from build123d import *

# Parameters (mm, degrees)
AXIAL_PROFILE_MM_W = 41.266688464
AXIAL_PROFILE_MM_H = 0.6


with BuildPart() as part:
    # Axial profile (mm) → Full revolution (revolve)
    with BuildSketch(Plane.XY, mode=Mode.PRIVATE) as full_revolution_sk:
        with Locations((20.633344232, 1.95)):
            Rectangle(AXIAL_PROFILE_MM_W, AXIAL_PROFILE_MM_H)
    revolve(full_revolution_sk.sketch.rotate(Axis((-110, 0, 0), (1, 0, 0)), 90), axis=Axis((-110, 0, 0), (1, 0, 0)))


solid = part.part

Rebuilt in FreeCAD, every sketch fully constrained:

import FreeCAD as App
import Part
import Sketcher
from FreeCAD import Vector


def add_polygon(sketch, points):
    """Adds a closed chain of lines whose ends are joined by coincident constraints."""
    first, n = sketch.GeometryCount, len(points)
    for a, b in zip(points, points[1:] + points[:1]):
        sketch.addGeometry(Part.LineSegment(App.Vector(*a, 0), App.Vector(*b, 0)), False)
    for i in range(n):
        sketch.addConstraint(Sketcher.Constraint("Coincident", first + i, 2, first + (i + 1) % n, 1))

doc = App.newDocument("Part")
params = doc.addObject("Spreadsheet::Sheet", "Params")
for row, (alias, value) in enumerate([
    ("sketch1_height", "0.6 mm"),
    ("revolution_angle", "360 deg"),
], start=1):
    params.set(f"A{row}", alias)
    params.set(f"B{row}", "=" + value)
    params.setAlias(f"B{row}", alias)

body = doc.addObject("PartDesign::Body", "Body")

# Sketch on XY plane
sketch1 = body.newObject("Sketcher::SketchObject", "Sketch")
sketch1.AttachmentSupport = (doc.getObject("XY_Plane"), [""])
sketch1.MapMode = "FlatFace"
add_polygon(sketch1, [(0, 2.25), (0, 1.65), (41.266688, 1.65), (41.266688, 2.25)])  # lines 0-3
sketch1.addConstraint([
    Sketcher.Constraint("Vertical", 0),
    Sketcher.Constraint("Horizontal", 1),
    Sketcher.Constraint("Vertical", 2),
    Sketcher.Constraint("Horizontal", 3),
    Sketcher.Constraint("PointOnObject", 0, 2, -2),
    Sketcher.Constraint("DistanceY", 0, 2, 0, 1, 0.6),
    Sketcher.Constraint("DistanceY", -1, 1, 0, 2, 1.65),
    Sketcher.Constraint("DistanceX", 1, 1, 1, 2, 41.266688),
])
sketch1.setExpression("Constraints[9]", "Params.sketch1_height")
revolution = body.newObject("PartDesign::Revolution", "Revolution")
revolution.Profile = sketch1
revolution.ReferenceAxis = (sketch1, ["H_Axis"])
revolution.setExpression("Angle", "Params.revolution_angle")

doc.recompute()
